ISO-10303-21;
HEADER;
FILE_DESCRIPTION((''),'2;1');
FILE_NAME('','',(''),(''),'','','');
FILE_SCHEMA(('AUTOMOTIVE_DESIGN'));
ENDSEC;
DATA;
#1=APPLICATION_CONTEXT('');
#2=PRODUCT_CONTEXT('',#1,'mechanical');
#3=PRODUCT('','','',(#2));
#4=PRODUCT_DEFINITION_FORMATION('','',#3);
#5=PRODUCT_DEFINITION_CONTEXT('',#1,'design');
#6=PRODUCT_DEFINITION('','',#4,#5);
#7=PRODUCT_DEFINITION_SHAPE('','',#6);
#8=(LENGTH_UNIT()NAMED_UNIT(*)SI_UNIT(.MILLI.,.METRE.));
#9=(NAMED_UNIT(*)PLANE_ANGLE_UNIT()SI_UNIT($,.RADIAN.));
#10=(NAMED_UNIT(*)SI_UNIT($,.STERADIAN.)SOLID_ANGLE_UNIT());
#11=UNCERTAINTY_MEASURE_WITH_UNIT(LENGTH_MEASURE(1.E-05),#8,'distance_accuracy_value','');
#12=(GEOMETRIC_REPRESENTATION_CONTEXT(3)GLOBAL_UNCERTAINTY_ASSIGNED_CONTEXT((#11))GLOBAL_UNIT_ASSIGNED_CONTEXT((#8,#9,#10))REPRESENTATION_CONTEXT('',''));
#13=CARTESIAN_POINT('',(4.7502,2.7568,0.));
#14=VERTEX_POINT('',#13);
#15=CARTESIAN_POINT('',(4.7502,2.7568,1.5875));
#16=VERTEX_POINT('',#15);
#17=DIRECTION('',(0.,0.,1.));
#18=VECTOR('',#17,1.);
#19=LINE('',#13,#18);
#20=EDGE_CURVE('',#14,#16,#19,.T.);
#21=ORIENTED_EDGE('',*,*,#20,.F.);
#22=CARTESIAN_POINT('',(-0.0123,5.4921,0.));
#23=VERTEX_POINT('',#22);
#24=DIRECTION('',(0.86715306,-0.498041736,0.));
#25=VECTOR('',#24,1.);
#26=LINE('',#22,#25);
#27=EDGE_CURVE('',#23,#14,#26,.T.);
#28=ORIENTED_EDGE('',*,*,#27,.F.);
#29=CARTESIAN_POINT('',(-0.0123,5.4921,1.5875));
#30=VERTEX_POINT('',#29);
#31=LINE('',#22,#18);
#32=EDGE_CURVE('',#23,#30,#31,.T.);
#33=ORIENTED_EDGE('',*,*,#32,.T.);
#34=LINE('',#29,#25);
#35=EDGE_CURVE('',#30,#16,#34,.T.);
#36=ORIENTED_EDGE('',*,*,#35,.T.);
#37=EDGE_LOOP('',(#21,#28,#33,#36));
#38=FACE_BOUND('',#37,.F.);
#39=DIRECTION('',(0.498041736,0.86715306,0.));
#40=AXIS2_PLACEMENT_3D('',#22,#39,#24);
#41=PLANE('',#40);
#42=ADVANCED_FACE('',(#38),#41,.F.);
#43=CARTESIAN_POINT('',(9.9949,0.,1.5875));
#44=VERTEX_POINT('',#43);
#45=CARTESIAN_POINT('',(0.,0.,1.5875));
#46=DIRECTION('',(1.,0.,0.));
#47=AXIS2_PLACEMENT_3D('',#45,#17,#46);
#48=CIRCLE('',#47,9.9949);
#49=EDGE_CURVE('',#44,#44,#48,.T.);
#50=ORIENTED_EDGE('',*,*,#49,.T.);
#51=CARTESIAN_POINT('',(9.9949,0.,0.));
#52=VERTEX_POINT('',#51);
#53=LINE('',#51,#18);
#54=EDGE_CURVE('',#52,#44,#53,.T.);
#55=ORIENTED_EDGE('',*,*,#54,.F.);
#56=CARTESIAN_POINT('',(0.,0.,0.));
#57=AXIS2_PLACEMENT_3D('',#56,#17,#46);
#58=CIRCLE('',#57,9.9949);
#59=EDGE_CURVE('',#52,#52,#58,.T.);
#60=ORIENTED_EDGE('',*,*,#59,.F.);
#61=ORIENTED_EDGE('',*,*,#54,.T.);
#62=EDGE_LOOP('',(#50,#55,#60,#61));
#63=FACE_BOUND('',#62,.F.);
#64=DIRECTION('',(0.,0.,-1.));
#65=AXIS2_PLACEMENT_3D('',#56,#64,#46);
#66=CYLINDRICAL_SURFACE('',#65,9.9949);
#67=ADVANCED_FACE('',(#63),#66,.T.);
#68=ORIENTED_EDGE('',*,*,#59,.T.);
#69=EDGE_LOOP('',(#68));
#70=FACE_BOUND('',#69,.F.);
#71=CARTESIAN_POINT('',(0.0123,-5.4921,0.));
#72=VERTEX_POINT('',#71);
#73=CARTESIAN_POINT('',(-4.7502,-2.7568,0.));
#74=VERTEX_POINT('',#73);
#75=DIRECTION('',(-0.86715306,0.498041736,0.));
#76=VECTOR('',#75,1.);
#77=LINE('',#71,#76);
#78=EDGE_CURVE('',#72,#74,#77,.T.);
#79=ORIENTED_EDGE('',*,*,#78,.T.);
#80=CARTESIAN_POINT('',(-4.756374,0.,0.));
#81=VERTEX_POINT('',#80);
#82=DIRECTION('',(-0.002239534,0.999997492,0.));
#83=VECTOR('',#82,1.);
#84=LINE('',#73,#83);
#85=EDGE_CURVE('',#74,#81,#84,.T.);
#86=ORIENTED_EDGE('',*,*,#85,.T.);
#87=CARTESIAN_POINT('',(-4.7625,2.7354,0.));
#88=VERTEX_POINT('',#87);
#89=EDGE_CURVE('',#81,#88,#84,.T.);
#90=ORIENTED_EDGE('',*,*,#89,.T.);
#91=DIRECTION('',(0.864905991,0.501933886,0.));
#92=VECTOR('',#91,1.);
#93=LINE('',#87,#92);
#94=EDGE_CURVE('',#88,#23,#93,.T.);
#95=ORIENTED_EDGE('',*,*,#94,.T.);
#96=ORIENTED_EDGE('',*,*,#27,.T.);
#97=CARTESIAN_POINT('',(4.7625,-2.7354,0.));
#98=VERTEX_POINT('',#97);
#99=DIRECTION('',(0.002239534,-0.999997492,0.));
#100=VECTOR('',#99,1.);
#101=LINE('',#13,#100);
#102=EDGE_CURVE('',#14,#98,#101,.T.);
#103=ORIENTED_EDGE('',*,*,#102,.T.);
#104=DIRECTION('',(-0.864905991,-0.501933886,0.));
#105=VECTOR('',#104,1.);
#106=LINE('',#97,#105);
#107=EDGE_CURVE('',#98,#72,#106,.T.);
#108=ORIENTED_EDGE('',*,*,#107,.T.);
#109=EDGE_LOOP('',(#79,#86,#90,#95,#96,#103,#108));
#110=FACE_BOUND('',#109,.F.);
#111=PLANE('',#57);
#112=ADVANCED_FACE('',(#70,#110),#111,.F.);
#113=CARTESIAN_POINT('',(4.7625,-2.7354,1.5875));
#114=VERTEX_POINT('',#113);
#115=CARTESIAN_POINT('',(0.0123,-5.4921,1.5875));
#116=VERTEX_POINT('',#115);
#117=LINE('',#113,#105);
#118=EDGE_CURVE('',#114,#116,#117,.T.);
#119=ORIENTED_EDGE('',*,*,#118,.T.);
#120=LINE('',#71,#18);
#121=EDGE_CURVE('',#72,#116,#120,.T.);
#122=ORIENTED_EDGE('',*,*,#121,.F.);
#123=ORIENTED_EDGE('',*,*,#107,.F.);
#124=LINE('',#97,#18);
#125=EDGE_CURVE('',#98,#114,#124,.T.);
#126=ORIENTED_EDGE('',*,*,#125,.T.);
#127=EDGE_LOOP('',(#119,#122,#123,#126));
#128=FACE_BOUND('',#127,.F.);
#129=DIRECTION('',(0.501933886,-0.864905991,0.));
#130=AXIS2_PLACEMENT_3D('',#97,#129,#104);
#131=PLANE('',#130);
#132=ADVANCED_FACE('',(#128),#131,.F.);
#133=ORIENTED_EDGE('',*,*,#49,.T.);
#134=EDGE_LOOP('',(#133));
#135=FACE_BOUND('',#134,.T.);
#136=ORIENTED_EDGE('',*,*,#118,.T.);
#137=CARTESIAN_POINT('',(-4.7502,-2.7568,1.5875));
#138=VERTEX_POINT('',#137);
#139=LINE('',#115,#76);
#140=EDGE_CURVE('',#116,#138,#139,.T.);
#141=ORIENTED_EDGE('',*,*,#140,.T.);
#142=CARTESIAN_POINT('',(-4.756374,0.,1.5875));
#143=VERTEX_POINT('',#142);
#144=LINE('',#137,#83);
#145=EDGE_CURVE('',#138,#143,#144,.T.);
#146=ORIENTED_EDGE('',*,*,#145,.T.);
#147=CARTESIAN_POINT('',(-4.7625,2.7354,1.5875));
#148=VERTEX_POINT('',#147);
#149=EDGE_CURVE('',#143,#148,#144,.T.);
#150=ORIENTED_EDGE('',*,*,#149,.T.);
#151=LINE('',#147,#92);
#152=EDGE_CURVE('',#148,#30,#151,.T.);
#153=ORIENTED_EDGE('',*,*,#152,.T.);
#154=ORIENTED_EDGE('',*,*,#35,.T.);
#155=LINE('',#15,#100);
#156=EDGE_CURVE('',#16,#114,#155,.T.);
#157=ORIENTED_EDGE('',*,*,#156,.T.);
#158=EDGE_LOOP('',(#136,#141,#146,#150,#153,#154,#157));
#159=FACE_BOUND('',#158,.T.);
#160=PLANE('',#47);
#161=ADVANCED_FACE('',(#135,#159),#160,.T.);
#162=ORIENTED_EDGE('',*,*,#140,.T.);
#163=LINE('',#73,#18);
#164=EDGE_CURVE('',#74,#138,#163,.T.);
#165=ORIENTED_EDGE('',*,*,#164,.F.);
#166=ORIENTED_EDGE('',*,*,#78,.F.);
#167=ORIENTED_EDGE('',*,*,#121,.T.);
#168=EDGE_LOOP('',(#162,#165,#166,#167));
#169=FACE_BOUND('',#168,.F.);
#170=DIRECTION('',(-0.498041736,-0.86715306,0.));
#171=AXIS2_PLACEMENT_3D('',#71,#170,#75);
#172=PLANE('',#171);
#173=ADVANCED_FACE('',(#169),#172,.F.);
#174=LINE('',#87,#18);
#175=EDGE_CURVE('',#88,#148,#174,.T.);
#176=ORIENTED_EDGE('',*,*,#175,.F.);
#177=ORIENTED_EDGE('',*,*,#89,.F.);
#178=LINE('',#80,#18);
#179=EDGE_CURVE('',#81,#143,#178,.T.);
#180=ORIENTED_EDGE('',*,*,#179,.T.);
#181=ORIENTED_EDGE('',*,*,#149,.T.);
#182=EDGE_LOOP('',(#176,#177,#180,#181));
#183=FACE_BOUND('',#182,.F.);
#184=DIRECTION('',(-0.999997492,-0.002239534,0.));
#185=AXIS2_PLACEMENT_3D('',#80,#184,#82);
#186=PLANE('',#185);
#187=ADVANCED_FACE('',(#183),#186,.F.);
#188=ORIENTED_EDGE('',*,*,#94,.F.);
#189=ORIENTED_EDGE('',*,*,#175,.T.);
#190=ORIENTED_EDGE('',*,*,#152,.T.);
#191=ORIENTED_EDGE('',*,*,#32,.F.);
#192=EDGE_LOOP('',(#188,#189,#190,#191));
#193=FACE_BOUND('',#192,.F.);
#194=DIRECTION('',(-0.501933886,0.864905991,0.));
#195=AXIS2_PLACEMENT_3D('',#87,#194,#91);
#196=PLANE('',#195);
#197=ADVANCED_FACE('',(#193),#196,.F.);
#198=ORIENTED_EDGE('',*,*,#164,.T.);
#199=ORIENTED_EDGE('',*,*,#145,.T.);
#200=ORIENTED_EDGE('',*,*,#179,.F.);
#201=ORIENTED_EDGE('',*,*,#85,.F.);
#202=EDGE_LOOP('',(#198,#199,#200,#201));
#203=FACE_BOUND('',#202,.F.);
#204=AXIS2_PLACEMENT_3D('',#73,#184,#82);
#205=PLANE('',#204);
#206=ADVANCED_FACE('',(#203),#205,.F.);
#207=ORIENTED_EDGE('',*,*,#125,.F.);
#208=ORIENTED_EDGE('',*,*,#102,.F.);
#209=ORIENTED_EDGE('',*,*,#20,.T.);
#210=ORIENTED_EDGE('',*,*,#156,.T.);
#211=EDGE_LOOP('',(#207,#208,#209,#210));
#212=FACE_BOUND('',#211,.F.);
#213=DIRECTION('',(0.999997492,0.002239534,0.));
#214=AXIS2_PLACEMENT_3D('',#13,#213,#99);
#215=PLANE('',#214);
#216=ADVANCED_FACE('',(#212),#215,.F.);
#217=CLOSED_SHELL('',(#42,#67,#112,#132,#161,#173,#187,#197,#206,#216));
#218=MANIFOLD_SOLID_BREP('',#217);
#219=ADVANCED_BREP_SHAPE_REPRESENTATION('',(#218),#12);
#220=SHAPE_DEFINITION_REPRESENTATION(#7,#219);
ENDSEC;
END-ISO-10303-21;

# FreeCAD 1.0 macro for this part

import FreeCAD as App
import Part
import Sketcher
Q = App.Units.Quantity

doc = App.newDocument("Part")
body = doc.addObject("PartDesign::Body", "Body")

# Sketch on XY plane
sketch1 = body.newObject("Sketcher::SketchObject", "Sketch")
sketch1.AttachmentSupport = (doc.getObject("XY_Plane"), [""])
sketch1.MapMode = "FlatFace"
sketch1.addGeometry([
    Part.Circle(App.Vector(0, 0, 0), App.Vector(0, 0, 1), 10),  # 0
    Part.LineSegment(App.Vector(-5, -3, 0), App.Vector(-5, 3, 0)),  # 1
    Part.LineSegment(App.Vector(-5, 3, 0), App.Vector(0, 5, 0)),  # 2
    Part.LineSegment(App.Vector(0, 5, 0), App.Vector(5, 3, 0)),  # 3
    Part.LineSegment(App.Vector(5, 3, 0), App.Vector(5, -3, 0)),  # 4
    Part.LineSegment(App.Vector(5, -3, 0), App.Vector(0, -5, 0)),  # 5
    Part.LineSegment(App.Vector(0, -5, 0), App.Vector(-5, -3, 0)),  # 6
], False)
sketch1.addConstraint([
    Sketcher.Constraint("Coincident", 1, 2, 2, 1),
    Sketcher.Constraint("Coincident", 2, 2, 3, 1),
    Sketcher.Constraint("Coincident", 3, 2, 4, 1),
    Sketcher.Constraint("Coincident", 4, 2, 5, 1),
    Sketcher.Constraint("Coincident", 5, 2, 6, 1),
    Sketcher.Constraint("Coincident", 6, 2, 1, 1),
    Sketcher.Constraint("Coincident", 0, 3, -1, 1),
    Sketcher.Constraint("Symmetric", 1, 2, 4, 2, -1, 1),
    Sketcher.Constraint("Symmetric", 2, 2, 5, 2, -1, 1),
    Sketcher.Constraint("Symmetric", 3, 2, 6, 2, -1, 1),
    Sketcher.Constraint("Equal", 1, 2),
    Sketcher.Constraint("Equal", 2, 3),
    Sketcher.Constraint("Diameter", 0, Q("0.787 in")),
    Sketcher.Constraint("DistanceX", 1, 2, -1, 1, Q("0.1875 in")),
    Sketcher.Constraint("DistanceX", 2, 2, 3, 2, Q("0.1875 in")),
    Sketcher.Constraint("Angle", 3, Q("-29.8705 deg")),
    Sketcher.Constraint("DistanceY", -1, 1, 1, 2, Q("0.1077 in")),
])
pad1 = body.newObject("PartDesign::Pad", "Pad")
pad1.Profile = sketch1
pad1.Length = Q("0.0625 in")

doc.recompute()
